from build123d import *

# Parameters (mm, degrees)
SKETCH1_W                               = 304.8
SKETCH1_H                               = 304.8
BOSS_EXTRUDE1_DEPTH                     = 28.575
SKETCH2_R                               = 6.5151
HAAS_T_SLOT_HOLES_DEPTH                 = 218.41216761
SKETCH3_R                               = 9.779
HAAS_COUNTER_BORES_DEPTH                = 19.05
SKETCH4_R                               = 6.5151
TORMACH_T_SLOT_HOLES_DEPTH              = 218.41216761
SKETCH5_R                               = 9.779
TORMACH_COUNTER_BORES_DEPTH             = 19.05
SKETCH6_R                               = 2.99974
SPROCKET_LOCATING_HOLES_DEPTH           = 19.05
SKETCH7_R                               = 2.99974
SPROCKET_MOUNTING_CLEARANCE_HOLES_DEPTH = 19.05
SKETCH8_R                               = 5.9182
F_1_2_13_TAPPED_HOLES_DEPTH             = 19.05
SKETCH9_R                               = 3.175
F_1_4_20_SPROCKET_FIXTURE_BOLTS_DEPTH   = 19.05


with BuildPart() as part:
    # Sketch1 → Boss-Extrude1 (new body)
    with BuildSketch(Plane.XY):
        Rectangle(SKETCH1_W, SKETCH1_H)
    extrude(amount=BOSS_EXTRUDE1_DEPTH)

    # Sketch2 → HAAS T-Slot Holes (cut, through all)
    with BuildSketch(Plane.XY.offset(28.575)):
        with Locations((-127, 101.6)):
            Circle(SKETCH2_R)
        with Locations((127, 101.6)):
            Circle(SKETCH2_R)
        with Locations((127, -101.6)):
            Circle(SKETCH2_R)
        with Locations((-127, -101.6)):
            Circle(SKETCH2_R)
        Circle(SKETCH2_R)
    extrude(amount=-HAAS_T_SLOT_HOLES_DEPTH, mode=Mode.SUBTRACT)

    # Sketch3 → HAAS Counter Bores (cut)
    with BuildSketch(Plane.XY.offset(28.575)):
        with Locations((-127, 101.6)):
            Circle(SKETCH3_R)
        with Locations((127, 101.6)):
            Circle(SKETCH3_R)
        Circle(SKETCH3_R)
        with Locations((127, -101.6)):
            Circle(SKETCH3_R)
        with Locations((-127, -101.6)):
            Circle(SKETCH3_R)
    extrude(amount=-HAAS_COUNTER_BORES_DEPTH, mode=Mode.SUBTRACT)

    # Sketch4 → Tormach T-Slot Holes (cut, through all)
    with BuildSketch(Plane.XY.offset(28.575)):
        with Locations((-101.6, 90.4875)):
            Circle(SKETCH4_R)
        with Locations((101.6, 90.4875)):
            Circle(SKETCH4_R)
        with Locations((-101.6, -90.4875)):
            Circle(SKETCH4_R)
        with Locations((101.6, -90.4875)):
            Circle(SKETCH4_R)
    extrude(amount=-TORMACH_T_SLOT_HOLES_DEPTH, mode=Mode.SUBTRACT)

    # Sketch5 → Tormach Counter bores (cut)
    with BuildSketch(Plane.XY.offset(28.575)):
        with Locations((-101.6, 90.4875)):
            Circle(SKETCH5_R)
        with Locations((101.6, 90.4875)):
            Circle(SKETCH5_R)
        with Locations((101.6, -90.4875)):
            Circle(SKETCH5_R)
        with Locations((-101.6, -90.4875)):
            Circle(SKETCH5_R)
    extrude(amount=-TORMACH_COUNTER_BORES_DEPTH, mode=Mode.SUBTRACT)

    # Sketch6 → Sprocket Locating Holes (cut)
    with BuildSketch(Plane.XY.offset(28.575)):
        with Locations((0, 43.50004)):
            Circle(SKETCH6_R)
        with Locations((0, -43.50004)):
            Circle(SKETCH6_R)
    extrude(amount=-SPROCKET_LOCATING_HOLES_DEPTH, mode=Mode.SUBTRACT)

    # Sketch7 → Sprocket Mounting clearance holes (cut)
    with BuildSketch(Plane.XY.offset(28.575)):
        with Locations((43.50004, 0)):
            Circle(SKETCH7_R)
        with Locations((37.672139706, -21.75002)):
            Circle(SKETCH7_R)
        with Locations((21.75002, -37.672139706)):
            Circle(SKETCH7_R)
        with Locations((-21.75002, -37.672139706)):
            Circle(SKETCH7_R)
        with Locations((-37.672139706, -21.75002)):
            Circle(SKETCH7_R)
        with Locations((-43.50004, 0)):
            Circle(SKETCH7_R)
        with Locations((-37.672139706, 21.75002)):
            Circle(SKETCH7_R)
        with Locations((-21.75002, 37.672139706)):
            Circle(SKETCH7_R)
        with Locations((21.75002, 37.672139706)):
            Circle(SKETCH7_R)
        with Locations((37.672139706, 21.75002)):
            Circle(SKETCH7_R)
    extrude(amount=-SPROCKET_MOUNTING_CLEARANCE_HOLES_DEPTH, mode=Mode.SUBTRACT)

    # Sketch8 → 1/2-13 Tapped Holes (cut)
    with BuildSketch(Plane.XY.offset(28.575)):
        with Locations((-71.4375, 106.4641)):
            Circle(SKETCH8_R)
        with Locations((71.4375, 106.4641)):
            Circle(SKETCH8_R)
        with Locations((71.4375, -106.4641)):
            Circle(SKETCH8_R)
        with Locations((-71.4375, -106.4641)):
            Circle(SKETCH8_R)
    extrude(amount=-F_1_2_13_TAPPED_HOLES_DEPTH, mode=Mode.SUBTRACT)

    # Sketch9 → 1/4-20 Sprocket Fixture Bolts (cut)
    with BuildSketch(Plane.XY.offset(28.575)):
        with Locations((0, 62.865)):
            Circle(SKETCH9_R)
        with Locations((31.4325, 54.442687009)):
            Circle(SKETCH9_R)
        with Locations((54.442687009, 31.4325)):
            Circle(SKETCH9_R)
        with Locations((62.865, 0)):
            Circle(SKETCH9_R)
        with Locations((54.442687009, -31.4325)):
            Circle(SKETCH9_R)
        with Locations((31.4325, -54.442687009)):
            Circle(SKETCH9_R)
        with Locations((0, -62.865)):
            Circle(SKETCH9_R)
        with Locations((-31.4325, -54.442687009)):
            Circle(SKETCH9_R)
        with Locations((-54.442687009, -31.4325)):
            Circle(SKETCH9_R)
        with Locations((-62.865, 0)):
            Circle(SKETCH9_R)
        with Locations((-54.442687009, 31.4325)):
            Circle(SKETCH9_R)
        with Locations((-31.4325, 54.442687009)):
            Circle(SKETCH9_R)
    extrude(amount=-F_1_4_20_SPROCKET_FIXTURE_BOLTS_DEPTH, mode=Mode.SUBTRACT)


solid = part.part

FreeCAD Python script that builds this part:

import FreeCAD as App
import Part
import Sketcher
from FreeCAD import Vector
Q = App.Units.Quantity

doc = App.newDocument("Part")
body = doc.addObject("PartDesign::Body", "Body")

sketch1 = doc.addObject("Sketcher::SketchObject", "Sketch")
body.addObject(sketch1)
sketch1.AttachmentSupport = (doc.XY_Plane, [""])
sketch1.MapMode = "FlatFace"
sketch1.addGeometry([
    Part.LineSegment(Vector(-152, 152, 0), Vector(-152, -152, 0)),
    Part.LineSegment(Vector(-152, -152, 0), Vector(152, -152, 0)),
    Part.LineSegment(Vector(152, -152, 0), Vector(152, 152, 0)),
    Part.LineSegment(Vector(152, 152, 0), Vector(-152, 152, 0)),
], False)
sketch1.addConstraint([
    Sketcher.Constraint("Coincident", 0, 2, 1, 1),
    Sketcher.Constraint("Coincident", 1, 2, 2, 1),
    Sketcher.Constraint("Coincident", 2, 2, 3, 1),
    Sketcher.Constraint("Coincident", 3, 2, 0, 1),
    Sketcher.Constraint("Vertical", 0),
    Sketcher.Constraint("Horizontal", 1),
    Sketcher.Constraint("Vertical", 2),
    Sketcher.Constraint("Horizontal", 3),
    Sketcher.Constraint("Symmetric", 0, 2, 2, 2, -1, 1),
    Sketcher.Constraint("Equal", 3, 0),
    Sketcher.Constraint("DistanceX", 1, 1, 1, 2, Q("12 in")),
])
pad1 = doc.addObject("PartDesign::Pad", "Pad")
body.addObject(pad1)
pad1.Profile = sketch1
pad1.Length = Q("1.125 in")

sketch2 = doc.addObject("Sketcher::SketchObject", "Sketch001")
body.addObject(sketch2)
sketch2.AttachmentSupport = (doc.XY_Plane, [""])
sketch2.MapMode = "FlatFace"
sketch2.AttachmentOffset = App.Placement(Vector(0, 0, 1.125 * 25.4), App.Rotation())
sketch2.addGeometry([
    Part.Circle(Vector(-127, 102, 0), Vector(0, 0, 1), 7),
    Part.Circle(Vector(127, 102, 0), Vector(0, 0, 1), 7),
    Part.Circle(Vector(127, -102, 0), Vector(0, 0, 1), 7),
    Part.Circle(Vector(-127, -102, 0), Vector(0, 0, 1), 7),
    Part.Circle(Vector(0, 0, 0), Vector(0, 0, 1), 7),
], False)
sketch2.addConstraint([
    Sketcher.Constraint("Coincident", 4, 3, -1, 1),
    Sketcher.Constraint("Equal", 0, 1),
    Sketcher.Constraint("Equal", 1, 2),
    Sketcher.Constraint("Equal", 2, 3),
    Sketcher.Constraint("Equal", 3, 4),
    Sketcher.Constraint("Symmetric", 0, 3, 2, 3, -1, 1),
    Sketcher.Constraint("Symmetric", 1, 3, 3, 3, -1, 1),
    Sketcher.Constraint("Symmetric", 0, 3, 1, 3, -2),
    Sketcher.Constraint("Diameter", 0, Q("0.513 in")),
    Sketcher.Constraint("DistanceX", 0, 3, -1, 1, Q("5 in")),
    Sketcher.Constraint("DistanceY", -1, 1, 0, 3, Q("4 in")),
])
pocket1 = doc.addObject("PartDesign::Pocket", "Pocket")
body.addObject(pocket1)
pocket1.Profile = sketch2
pocket1.Type = "ThroughAll"

sketch3 = doc.addObject("Sketcher::SketchObject", "Sketch002")
body.addObject(sketch3)
sketch3.AttachmentSupport = (doc.XY_Plane, [""])
sketch3.MapMode = "FlatFace"
sketch3.AttachmentOffset = App.Placement(Vector(0, 0, 1.125 * 25.4), App.Rotation())
sketch3.addGeometry([
    Part.Circle(Vector(-127, 102, 0), Vector(0, 0, 1), 10),
    Part.Circle(Vector(127, 102, 0), Vector(0, 0, 1), 10),
    Part.Circle(Vector(0, 0, 0), Vector(0, 0, 1), 10),
    Part.Circle(Vector(127, -102, 0), Vector(0, 0, 1), 10),
    Part.Circle(Vector(-127, -102, 0), Vector(0, 0, 1), 10),
], False)
sketch3.addConstraint([
    Sketcher.Constraint("Coincident", 2, 3, -1, 1),
    Sketcher.Constraint("Equal", 0, 1),
    Sketcher.Constraint("Equal", 1, 2),
    Sketcher.Constraint("Equal", 2, 3),
    Sketcher.Constraint("Equal", 3, 4),
    Sketcher.Constraint("Symmetric", 0, 3, 3, 3, -1, 1),
    Sketcher.Constraint("Symmetric", 1, 3, 4, 3, -1, 1),
    Sketcher.Constraint("Symmetric", 0, 3, 1, 3, -2),
    Sketcher.Constraint("Diameter", 0, Q("0.77 in")),
    Sketcher.Constraint("DistanceX", 0, 3, -1, 1, Q("5 in")),
    Sketcher.Constraint("DistanceY", -1, 1, 0, 3, Q("4 in")),
])
pocket2 = doc.addObject("PartDesign::Pocket", "Pocket001")
body.addObject(pocket2)
pocket2.Profile = sketch3
pocket2.Length = Q("0.75 in")

sketch4 = doc.addObject("Sketcher::SketchObject", "Sketch003")
body.addObject(sketch4)
sketch4.AttachmentSupport = (doc.XY_Plane, [""])
sketch4.MapMode = "FlatFace"
sketch4.AttachmentOffset = App.Placement(Vector(0, 0, 1.125 * 25.4), App.Rotation())
sketch4.addGeometry([
    Part.Circle(Vector(-102, 90, 0), Vector(0, 0, 1), 7),
    Part.Circle(Vector(102, 90, 0), Vector(0, 0, 1), 7),
    Part.Circle(Vector(-102, -90, 0), Vector(0, 0, 1), 7),
    Part.Circle(Vector(102, -90, 0), Vector(0, 0, 1), 7),
], False)
sketch4.addConstraint([
    Sketcher.Constraint("Equal", 0, 1),
    Sketcher.Constraint("Equal", 1, 2),
    Sketcher.Constraint("Equal", 2, 3),
    Sketcher.Constraint("Symmetric", 1, 3, 2, 3, -1, 1),
    Sketcher.Constraint("Symmetric", 0, 3, 3, 3, -1, 1),
    Sketcher.Constraint("Symmetric", 0, 3, 1, 3, -2),
    Sketcher.Constraint("Diameter", 0, Q("0.513 in")),
    Sketcher.Constraint("DistanceX", 0, 3, -1, 1, Q("4 in")),
    Sketcher.Constraint("DistanceY", -1, 1, 0, 3, Q("3.5625 in")),
])
pocket3 = doc.addObject("PartDesign::Pocket", "Pocket002")
body.addObject(pocket3)
pocket3.Profile = sketch4
pocket3.Type = "ThroughAll"

sketch5 = doc.addObject("Sketcher::SketchObject", "Sketch004")
body.addObject(sketch5)
sketch5.AttachmentSupport = (doc.XY_Plane, [""])
sketch5.MapMode = "FlatFace"
sketch5.AttachmentOffset = App.Placement(Vector(0, 0, 1.125 * 25.4), App.Rotation())
sketch5.addGeometry([
    Part.Circle(Vector(-102, 90, 0), Vector(0, 0, 1), 10),
    Part.Circle(Vector(102, 90, 0), Vector(0, 0, 1), 10),
    Part.Circle(Vector(102, -90, 0), Vector(0, 0, 1), 10),
    Part.Circle(Vector(-102, -90, 0), Vector(0, 0, 1), 10),
], False)
sketch5.addConstraint([
    Sketcher.Constraint("Equal", 0, 1),
    Sketcher.Constraint("Equal", 1, 2),
    Sketcher.Constraint("Equal", 2, 3),
    Sketcher.Constraint("Symmetric", 0, 3, 2, 3, -1, 1),
    Sketcher.Constraint("Symmetric", 1, 3, 3, 3, -1, 1),
    Sketcher.Constraint("Symmetric", 0, 3, 1, 3, -2),
    Sketcher.Constraint("Diameter", 0, Q("0.77 in")),
    Sketcher.Constraint("DistanceX", 0, 3, -1, 1, Q("4 in")),
    Sketcher.Constraint("DistanceY", -1, 1, 0, 3, Q("3.5625 in")),
])
pocket4 = doc.addObject("PartDesign::Pocket", "Pocket003")
body.addObject(pocket4)
pocket4.Profile = sketch5
pocket4.Length = Q("0.75 in")

sketch6 = doc.addObject("Sketcher::SketchObject", "Sketch005")
body.addObject(sketch6)
sketch6.AttachmentSupport = (doc.XY_Plane, [""])
sketch6.MapMode = "FlatFace"
sketch6.AttachmentOffset = App.Placement(Vector(0, 0, 1.125 * 25.4), App.Rotation())
sketch6.addGeometry([
    Part.Circle(Vector(0, 43.5, 0), Vector(0, 0, 1), 3),
    Part.Circle(Vector(0, -43.5, 0), Vector(0, 0, 1), 3),
], False)
sketch6.addConstraint([
    Sketcher.Constraint("Equal", 0, 1),
    Sketcher.Constraint("Symmetric", 0, 3, 1, 3, -1, 1),
    Sketcher.Constraint("PointOnObject", 0, 3, -2),
    Sketcher.Constraint("Diameter", 0, Q("0.2362 in")),
    Sketcher.Constraint("DistanceY", -1, 1, 0, 3, Q("1.7126 in")),
])
pocket5 = doc.addObject("PartDesign::Pocket", "Pocket004")
body.addObject(pocket5)
pocket5.Profile = sketch6
pocket5.Length = Q("0.75 in")

sketch7 = doc.addObject("Sketcher::SketchObject", "Sketch006")
body.addObject(sketch7)
sketch7.AttachmentSupport = (doc.XY_Plane, [""])
sketch7.MapMode = "FlatFace"
sketch7.AttachmentOffset = App.Placement(Vector(0, 0, 1.125 * 25.4), App.Rotation())
sketch7.addGeometry([
    Part.Circle(Vector(43.5, 0, 0), Vector(0, 0, 1), 3),
    Part.Circle(Vector(37.7, -21.8, 0), Vector(0, 0, 1), 3),
    Part.Circle(Vector(21.8, -37.7, 0), Vector(0, 0, 1), 3),
    Part.Circle(Vector(-21.8, -37.7, 0), Vector(0, 0, 1), 3),
    Part.Circle(Vector(-37.7, -21.8, 0), Vector(0, 0, 1), 3),
    Part.Circle(Vector(-43.5, 0, 0), Vector(0, 0, 1), 3),
    Part.Circle(Vector(-37.7, 21.8, 0), Vector(0, 0, 1), 3),
    Part.Circle(Vector(-21.8, 37.7, 0), Vector(0, 0, 1), 3),
    Part.Circle(Vector(21.8, 37.7, 0), Vector(0, 0, 1), 3),
    Part.Circle(Vector(37.7, 21.8, 0), Vector(0, 0, 1), 3),
], False)
sketch7.addConstraint([
    Sketcher.Constraint("Equal", 0, 1),
    Sketcher.Constraint("Equal", 1, 2),
    Sketcher.Constraint("Equal", 2, 3),
    Sketcher.Constraint("Equal", 3, 4),
    Sketcher.Constraint("Equal", 4, 5),
    Sketcher.Constraint("Equal", 5, 6),
    Sketcher.Constraint("Equal", 6, 7),
    Sketcher.Constraint("Equal", 7, 8),
    Sketcher.Constraint("Equal", 8, 9),
    Sketcher.Constraint("Symmetric", 0, 3, 5, 3, -1, 1),
    Sketcher.Constraint("Symmetric", 1, 3, 6, 3, -1, 1),
    Sketcher.Constraint("Symmetric", 2, 3, 7, 3, -1, 1),
    Sketcher.Constraint("Symmetric", 3, 3, 8, 3, -1, 1),
    Sketcher.Constraint("Symmetric", 4, 3, 9, 3, -1, 1),
    Sketcher.Constraint("Symmetric", 2, 3, 3, 3, -2),
    Sketcher.Constraint("Symmetric", 1, 3, 4, 3, -2),
    Sketcher.Constraint("PointOnObject", 0, 3, -1),
    Sketcher.Constraint("Diameter", 0, Q("0.2362 in")),
    Sketcher.Constraint("DistanceX", -1, 1, 0, 3, Q("1.7126 in")),
    Sketcher.Constraint("DistanceY", 1, 3, -1, 1, Q("0.8563 in")),
    Sketcher.Constraint("DistanceX", -1, 1, 2, 3, Q("0.8563 in")),
    Sketcher.Constraint("DistanceX", 1, 3, 0, 3, Q("5.8279 mm")),
    Sketcher.Constraint("DistanceY", 2, 3, -1, 1, Q("37.67214 mm")),
])
pocket6 = doc.addObject("PartDesign::Pocket", "Pocket005")
body.addObject(pocket6)
pocket6.Profile = sketch7
pocket6.Length = Q("0.75 in")

sketch8 = doc.addObject("Sketcher::SketchObject", "Sketch007")
body.addObject(sketch8)
sketch8.AttachmentSupport = (doc.XY_Plane, [""])
sketch8.MapMode = "FlatFace"
sketch8.AttachmentOffset = App.Placement(Vector(0, 0, 1.125 * 25.4), App.Rotation())
sketch8.addGeometry([
    Part.Circle(Vector(-71, 106, 0), Vector(0, 0, 1), 6),
    Part.Circle(Vector(71, 106, 0), Vector(0, 0, 1), 6),
    Part.Circle(Vector(71, -106, 0), Vector(0, 0, 1), 6),
    Part.Circle(Vector(-71, -106, 0), Vector(0, 0, 1), 6),
], False)
sketch8.addConstraint([
    Sketcher.Constraint("Equal", 0, 1),
    Sketcher.Constraint("Equal", 1, 2),
    Sketcher.Constraint("Equal", 2, 3),
    Sketcher.Constraint("Symmetric", 0, 3, 2, 3, -1, 1),
    Sketcher.Constraint("Symmetric", 1, 3, 3, 3, -1, 1),
    Sketcher.Constraint("Symmetric", 0, 3, 1, 3, -2),
    Sketcher.Constraint("Diameter", 0, Q("0.466 in")),
    Sketcher.Constraint("DistanceX", 0, 3, -1, 1, Q("2.8125 in")),
    Sketcher.Constraint("DistanceY", 2, 3, 1, 3, Q("8.383 in")),
])
pocket7 = doc.addObject("PartDesign::Pocket", "Pocket006")
body.addObject(pocket7)
pocket7.Profile = sketch8
pocket7.Length = Q("0.75 in")

sketch9 = doc.addObject("Sketcher::SketchObject", "Sketch008")
body.addObject(sketch9)
sketch9.AttachmentSupport = (doc.XY_Plane, [""])
sketch9.MapMode = "FlatFace"
sketch9.AttachmentOffset = App.Placement(Vector(0, 0, 1.125 * 25.4), App.Rotation())
sketch9.addGeometry([
    Part.Circle(Vector(0, 62.9, 0), Vector(0, 0, 1), 3.2),
    Part.Circle(Vector(31.4, 54.4, 0), Vector(0, 0, 1), 3.2),
    Part.Circle(Vector(54.4, 31.4, 0), Vector(0, 0, 1), 3.2),
    Part.Circle(Vector(62.9, 0, 0), Vector(0, 0, 1), 3.2),
    Part.Circle(Vector(54.4, -31.4, 0), Vector(0, 0, 1), 3.2),
    Part.Circle(Vector(31.4, -54.4, 0), Vector(0, 0, 1), 3.2),
    Part.Circle(Vector(0, -62.9, 0), Vector(0, 0, 1), 3.2),
    Part.Circle(Vector(-31.4, -54.4, 0), Vector(0, 0, 1), 3.2),
    Part.Circle(Vector(-54.4, -31.4, 0), Vector(0, 0, 1), 3.2),
    Part.Circle(Vector(-62.9, 0, 0), Vector(0, 0, 1), 3.2),
    Part.Circle(Vector(-54.4, 31.4, 0), Vector(0, 0, 1), 3.2),
    Part.Circle(Vector(-31.4, 54.4, 0), Vector(0, 0, 1), 3.2),
], False)
sketch9.addConstraint([
    Sketcher.Constraint("Equal", 0, 1),
    Sketcher.Constraint("Equal", 1, 2),
    Sketcher.Constraint("Equal", 2, 3),
    Sketcher.Constraint("Equal", 3, 4),
    Sketcher.Constraint("Equal", 4, 5),
    Sketcher.Constraint("Equal", 5, 6),
    Sketcher.Constraint("Equal", 6, 7),
    Sketcher.Constraint("Equal", 7, 8),
    Sketcher.Constraint("Equal", 8, 9),
    Sketcher.Constraint("Equal", 9, 10),
    Sketcher.Constraint("Equal", 10, 11),
    Sketcher.Constraint("Symmetric", 0, 3, 6, 3, -1, 1),
    Sketcher.Constraint("Symmetric", 1, 3, 7, 3, -1, 1),
    Sketcher.Constraint("Symmetric", 2, 3, 8, 3, -1, 1),
    Sketcher.Constraint("Symmetric", 3, 3, 9, 3, -1, 1),
    Sketcher.Constraint("Symmetric", 4, 3, 10, 3, -1, 1),
    Sketcher.Constraint("Symmetric", 5, 3, 11, 3, -1, 1),
    Sketcher.Constraint("Symmetric", 5, 3, 7, 3, -2),
    Sketcher.Constraint("Symmetric", 4, 3, 8, 3, -2),
    Sketcher.Constraint("PointOnObject", 0, 3, -2),
    Sketcher.Constraint("PointOnObject", 3, 3, -1),
    Sketcher.Constraint("Diameter", 0, Q("0.25 in")),
    Sketcher.Constraint("DistanceY", -1, 1, 0, 3, Q("2.475 in")),
    Sketcher.Constraint("DistanceX", -1, 1, 3, 3, Q("2.475 in")),
    Sketcher.Constraint("DistanceY", 4, 3, 2, 3, Q("2.475 in")),
    Sketcher.Constraint("DistanceX", 7, 3, 5, 3, Q("2.475 in")),
    Sketcher.Constraint("DistanceY", -1, 1, 1, 3, Q("54.442687 mm")),
    Sketcher.Constraint("DistanceX", -1, 1, 2, 3, Q("54.442687 mm")),
])
pocket8 = doc.addObject("PartDesign::Pocket", "Pocket007")
body.addObject(pocket8)
pocket8.Profile = sketch9
pocket8.Length = Q("0.75 in")

doc.recompute()
